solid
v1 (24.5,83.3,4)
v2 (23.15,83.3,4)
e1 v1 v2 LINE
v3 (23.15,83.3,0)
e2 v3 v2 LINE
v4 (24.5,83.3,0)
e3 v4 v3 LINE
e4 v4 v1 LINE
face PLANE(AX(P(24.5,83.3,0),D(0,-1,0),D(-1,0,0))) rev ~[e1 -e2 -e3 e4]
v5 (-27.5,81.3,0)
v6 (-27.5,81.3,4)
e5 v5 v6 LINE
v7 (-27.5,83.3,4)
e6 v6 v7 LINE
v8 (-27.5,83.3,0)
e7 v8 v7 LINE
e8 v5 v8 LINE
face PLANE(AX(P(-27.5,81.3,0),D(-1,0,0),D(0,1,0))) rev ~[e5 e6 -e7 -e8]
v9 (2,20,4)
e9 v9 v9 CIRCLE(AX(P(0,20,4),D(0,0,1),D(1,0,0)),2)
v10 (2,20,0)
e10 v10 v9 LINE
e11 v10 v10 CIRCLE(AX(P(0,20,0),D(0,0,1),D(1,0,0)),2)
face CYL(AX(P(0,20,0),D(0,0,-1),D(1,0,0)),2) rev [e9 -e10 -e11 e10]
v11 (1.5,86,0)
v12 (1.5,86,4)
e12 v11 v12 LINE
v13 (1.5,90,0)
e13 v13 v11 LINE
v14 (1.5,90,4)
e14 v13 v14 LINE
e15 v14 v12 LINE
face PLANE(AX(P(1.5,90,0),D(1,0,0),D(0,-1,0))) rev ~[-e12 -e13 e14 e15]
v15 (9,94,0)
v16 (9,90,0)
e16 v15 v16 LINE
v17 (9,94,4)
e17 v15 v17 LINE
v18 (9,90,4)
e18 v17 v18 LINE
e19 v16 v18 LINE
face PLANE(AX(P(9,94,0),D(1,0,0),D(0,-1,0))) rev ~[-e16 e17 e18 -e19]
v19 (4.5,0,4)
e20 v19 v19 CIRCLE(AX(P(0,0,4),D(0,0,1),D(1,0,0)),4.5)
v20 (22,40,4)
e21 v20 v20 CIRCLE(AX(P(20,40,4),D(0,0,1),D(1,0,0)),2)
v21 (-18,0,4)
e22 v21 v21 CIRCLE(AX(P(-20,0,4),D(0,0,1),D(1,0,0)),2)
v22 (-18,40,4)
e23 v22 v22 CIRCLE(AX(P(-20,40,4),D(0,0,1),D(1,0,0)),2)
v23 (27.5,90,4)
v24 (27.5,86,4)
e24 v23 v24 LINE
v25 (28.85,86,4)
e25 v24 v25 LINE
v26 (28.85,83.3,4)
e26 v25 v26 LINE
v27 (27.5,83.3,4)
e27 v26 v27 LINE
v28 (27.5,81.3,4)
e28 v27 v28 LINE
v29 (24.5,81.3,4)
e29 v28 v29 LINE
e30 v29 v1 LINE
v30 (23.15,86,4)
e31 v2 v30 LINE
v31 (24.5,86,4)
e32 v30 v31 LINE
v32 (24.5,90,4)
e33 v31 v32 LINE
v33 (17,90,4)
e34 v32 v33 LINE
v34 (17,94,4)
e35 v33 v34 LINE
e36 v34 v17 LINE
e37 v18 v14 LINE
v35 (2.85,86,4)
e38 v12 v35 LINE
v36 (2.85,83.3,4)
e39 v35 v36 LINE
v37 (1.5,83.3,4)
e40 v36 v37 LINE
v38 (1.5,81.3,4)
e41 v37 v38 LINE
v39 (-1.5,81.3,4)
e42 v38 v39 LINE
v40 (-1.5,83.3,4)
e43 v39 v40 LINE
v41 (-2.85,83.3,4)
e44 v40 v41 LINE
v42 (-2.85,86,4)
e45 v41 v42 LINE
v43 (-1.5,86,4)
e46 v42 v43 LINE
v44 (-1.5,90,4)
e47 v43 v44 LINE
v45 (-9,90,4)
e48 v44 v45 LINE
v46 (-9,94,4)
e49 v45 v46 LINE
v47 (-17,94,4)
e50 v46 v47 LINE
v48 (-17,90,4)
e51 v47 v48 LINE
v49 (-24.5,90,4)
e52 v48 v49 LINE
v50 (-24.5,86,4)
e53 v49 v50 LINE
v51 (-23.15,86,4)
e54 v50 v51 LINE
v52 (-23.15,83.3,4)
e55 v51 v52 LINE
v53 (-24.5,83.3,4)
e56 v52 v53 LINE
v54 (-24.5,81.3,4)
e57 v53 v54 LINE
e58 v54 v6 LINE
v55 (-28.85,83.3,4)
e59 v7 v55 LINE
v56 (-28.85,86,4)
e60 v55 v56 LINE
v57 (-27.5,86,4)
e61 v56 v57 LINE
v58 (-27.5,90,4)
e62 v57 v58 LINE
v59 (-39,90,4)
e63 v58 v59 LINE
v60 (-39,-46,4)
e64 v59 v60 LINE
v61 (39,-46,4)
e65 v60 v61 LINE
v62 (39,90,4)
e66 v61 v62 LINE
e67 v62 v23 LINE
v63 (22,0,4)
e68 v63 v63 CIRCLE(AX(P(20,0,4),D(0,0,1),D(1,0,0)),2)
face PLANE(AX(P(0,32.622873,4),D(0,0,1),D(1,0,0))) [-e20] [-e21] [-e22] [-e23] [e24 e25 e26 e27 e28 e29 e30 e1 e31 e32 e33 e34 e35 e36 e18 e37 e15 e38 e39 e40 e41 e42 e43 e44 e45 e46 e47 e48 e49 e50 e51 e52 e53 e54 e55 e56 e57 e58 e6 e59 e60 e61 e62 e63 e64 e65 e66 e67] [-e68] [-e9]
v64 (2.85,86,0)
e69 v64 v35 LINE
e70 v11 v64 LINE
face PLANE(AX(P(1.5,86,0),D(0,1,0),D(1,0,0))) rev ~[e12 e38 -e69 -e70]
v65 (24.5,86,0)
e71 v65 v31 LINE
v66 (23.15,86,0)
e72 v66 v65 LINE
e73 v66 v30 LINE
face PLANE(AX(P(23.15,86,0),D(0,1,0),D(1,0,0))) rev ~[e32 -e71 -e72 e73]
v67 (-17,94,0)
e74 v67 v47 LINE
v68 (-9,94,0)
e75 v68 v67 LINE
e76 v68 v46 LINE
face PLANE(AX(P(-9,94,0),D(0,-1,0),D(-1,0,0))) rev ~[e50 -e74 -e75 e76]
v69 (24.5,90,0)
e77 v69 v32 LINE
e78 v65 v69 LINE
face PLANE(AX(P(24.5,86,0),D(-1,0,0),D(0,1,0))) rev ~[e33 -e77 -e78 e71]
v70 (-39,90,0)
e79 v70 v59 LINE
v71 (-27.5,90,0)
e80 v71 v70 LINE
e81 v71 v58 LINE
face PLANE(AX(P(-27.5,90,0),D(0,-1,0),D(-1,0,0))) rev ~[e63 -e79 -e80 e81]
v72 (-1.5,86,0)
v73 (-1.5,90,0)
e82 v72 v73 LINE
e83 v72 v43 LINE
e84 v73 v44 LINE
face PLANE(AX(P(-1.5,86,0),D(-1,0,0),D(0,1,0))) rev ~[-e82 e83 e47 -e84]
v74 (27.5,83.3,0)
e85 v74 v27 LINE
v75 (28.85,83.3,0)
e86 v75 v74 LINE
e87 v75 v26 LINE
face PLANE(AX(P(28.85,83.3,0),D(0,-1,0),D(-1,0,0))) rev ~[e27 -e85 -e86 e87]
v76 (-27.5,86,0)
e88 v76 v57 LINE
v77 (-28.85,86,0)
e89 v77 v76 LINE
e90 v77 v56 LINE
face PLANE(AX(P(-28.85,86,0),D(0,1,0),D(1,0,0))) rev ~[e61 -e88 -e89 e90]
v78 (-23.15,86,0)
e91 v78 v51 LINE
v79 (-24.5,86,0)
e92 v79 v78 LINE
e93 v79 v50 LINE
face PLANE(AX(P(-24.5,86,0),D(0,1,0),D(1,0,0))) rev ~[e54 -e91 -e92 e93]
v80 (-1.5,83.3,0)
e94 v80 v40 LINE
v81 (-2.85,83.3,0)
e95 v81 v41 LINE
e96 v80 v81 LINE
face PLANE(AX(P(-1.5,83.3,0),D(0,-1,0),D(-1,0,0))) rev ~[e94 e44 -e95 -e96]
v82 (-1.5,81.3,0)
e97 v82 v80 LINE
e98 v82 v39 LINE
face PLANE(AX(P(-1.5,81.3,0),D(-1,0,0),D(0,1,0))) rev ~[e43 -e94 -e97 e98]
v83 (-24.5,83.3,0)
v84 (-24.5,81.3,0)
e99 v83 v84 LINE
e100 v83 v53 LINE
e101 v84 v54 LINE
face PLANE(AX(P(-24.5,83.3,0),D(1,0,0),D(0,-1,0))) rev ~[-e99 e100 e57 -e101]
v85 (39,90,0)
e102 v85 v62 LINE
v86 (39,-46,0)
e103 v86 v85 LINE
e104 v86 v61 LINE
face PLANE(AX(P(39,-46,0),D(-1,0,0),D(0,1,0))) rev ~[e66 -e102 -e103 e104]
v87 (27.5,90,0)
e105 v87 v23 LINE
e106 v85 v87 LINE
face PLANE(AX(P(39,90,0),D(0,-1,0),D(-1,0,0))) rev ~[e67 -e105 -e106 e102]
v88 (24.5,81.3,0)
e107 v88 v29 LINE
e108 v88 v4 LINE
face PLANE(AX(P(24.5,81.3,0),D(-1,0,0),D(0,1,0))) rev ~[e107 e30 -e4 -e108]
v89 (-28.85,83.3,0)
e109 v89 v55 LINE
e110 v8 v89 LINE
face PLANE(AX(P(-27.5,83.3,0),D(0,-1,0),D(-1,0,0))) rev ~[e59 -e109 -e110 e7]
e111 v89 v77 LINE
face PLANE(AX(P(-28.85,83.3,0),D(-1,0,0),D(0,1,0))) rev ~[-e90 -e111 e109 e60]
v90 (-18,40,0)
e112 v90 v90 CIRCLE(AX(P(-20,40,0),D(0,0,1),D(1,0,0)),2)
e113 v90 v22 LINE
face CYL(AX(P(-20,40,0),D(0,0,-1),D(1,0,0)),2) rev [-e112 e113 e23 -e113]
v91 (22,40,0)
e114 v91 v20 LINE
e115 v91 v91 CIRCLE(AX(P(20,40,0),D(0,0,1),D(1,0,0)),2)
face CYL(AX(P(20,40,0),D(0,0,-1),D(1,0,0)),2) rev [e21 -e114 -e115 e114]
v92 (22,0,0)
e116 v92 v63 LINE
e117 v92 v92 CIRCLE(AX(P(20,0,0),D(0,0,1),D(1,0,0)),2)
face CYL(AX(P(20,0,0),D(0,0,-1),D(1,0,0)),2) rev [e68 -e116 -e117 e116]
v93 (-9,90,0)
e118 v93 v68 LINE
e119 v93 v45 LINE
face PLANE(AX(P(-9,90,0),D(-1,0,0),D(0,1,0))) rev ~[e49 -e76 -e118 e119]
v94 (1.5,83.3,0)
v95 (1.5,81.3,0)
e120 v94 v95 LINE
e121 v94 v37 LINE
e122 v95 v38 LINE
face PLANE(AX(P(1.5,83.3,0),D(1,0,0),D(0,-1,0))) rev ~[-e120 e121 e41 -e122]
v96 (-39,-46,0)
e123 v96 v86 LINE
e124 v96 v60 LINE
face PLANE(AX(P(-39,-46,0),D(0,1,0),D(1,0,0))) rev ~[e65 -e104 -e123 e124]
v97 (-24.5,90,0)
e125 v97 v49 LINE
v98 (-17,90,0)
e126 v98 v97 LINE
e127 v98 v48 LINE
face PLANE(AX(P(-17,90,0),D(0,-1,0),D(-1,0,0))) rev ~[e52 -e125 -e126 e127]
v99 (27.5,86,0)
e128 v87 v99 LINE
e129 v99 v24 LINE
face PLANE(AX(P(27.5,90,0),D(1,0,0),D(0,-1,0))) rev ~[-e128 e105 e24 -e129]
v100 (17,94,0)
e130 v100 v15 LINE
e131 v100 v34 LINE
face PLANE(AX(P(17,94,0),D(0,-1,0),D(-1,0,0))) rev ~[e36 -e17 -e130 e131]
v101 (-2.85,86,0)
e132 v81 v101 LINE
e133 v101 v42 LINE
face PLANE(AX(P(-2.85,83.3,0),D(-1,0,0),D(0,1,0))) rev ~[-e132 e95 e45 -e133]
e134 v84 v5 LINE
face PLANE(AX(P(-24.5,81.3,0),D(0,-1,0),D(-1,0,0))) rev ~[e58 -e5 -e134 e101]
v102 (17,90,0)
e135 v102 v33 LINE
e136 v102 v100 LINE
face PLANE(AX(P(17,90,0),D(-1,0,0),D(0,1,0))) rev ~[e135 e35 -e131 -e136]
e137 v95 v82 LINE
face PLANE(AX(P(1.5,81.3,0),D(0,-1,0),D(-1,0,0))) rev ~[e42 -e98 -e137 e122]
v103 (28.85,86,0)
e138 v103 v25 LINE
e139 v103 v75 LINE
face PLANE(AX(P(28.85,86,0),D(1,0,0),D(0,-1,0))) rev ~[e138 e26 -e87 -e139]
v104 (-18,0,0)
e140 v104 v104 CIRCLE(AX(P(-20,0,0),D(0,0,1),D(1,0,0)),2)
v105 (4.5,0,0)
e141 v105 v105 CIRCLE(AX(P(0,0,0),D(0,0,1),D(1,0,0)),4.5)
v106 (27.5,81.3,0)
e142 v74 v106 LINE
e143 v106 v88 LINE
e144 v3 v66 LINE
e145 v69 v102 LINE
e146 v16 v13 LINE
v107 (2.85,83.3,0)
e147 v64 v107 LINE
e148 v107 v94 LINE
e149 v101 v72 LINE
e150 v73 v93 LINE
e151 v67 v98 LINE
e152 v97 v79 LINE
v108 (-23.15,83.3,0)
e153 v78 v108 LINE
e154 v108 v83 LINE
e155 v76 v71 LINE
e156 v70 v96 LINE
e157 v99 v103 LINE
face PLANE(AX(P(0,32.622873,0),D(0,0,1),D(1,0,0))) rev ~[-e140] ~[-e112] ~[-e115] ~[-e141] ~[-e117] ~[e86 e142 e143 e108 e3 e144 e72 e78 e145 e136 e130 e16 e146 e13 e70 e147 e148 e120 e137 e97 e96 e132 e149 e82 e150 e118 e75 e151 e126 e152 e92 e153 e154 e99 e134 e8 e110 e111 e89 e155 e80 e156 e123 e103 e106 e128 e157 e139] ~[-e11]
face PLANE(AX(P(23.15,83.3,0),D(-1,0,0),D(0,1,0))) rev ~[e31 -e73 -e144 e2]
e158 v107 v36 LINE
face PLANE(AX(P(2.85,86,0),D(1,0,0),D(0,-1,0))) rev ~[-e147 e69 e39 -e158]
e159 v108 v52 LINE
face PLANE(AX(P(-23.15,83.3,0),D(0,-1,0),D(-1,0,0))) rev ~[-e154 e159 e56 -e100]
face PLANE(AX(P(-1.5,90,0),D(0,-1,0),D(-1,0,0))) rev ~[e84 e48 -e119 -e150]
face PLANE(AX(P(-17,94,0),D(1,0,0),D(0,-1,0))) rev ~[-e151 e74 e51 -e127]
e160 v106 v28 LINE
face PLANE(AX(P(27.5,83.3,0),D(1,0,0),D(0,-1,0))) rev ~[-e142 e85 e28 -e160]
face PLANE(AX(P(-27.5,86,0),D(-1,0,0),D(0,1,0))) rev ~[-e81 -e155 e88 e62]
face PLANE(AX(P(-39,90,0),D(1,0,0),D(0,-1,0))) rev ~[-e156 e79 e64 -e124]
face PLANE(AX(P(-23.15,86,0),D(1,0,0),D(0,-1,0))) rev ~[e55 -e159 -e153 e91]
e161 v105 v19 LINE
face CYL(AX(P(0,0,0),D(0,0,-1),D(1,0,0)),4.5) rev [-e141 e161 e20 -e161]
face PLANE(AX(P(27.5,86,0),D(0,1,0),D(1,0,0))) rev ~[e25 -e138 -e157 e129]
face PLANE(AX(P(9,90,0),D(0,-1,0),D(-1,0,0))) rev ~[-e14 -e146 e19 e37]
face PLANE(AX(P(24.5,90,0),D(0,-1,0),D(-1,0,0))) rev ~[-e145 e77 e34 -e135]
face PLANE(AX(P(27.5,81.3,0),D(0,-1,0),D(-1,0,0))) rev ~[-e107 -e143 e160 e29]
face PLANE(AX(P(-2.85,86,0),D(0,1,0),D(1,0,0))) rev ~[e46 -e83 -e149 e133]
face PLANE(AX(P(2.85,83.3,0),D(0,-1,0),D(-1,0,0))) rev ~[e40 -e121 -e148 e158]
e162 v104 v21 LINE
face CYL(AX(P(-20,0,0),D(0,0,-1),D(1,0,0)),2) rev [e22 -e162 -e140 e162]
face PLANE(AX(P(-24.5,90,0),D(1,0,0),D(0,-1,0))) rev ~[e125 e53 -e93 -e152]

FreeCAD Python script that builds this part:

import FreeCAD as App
import Part
import Sketcher
from FreeCAD import Vector

doc = App.newDocument("Part")
body = doc.addObject("PartDesign::Body", "Body")

# Sketch on XY plane
sketch1 = body.newObject("Sketcher::SketchObject", "Sketch")
sketch1.AttachmentSupport = (doc.getObject("XY_Plane"), [""])
sketch1.MapMode = "FlatFace"
sketch1.addGeometry([
    Part.LineSegment(Vector(-39, 90, 0), Vector(-39, -46, 0)),  # 0
    Part.LineSegment(Vector(-39, -46, 0), Vector(39, -46, 0)),  # 1
    Part.LineSegment(Vector(39, -46, 0), Vector(39, 90, 0)),  # 2
    Part.LineSegment(Vector(39, 90, 0), Vector(27.5, 90, 0)),  # 3
    Part.LineSegment(Vector(27.5, 90, 0), Vector(27.5, 86, 0)),  # 4
    Part.LineSegment(Vector(27.5, 86, 0), Vector(28.9, 86, 0)),  # 5
    Part.LineSegment(Vector(28.9, 86, 0), Vector(28.9, 83.3, 0)),  # 6
    Part.LineSegment(Vector(28.9, 83.3, 0), Vector(27.5, 83.3, 0)),  # 7
    Part.LineSegment(Vector(27.5, 83.3, 0), Vector(27.5, 81.3, 0)),  # 8
    Part.LineSegment(Vector(27.5, 81.3, 0), Vector(24.5, 81.3, 0)),  # 9
    Part.LineSegment(Vector(24.5, 81.3, 0), Vector(24.5, 83.3, 0)),  # 10
    Part.LineSegment(Vector(24.5, 83.3, 0), Vector(23.1, 83.3, 0)),  # 11
    Part.LineSegment(Vector(23.1, 83.3, 0), Vector(23.1, 86, 0)),  # 12
    Part.LineSegment(Vector(23.1, 86, 0), Vector(24.5, 86, 0)),  # 13
    Part.LineSegment(Vector(24.5, 86, 0), Vector(24.5, 90, 0)),  # 14
    Part.LineSegment(Vector(24.5, 90, 0), Vector(17, 90, 0)),  # 15
    Part.LineSegment(Vector(17, 90, 0), Vector(17, 94, 0)),  # 16
    Part.LineSegment(Vector(17, 94, 0), Vector(9, 94, 0)),  # 17
    Part.LineSegment(Vector(9, 94, 0), Vector(9, 90, 0)),  # 18
    Part.LineSegment(Vector(9, 90, 0), Vector(1.5, 90, 0)),  # 19
    Part.LineSegment(Vector(1.5, 90, 0), Vector(1.5, 86, 0)),  # 20
    Part.LineSegment(Vector(1.5, 86, 0), Vector(2.9, 86, 0)),  # 21
    Part.LineSegment(Vector(2.9, 86, 0), Vector(2.9, 83.3, 0)),  # 22
    Part.LineSegment(Vector(2.9, 83.3, 0), Vector(1.5, 83.3, 0)),  # 23
    Part.LineSegment(Vector(1.5, 83.3, 0), Vector(1.5, 81.3, 0)),  # 24
    Part.LineSegment(Vector(1.5, 81.3, 0), Vector(-1.5, 81.3, 0)),  # 25
    Part.LineSegment(Vector(-1.5, 81.3, 0), Vector(-1.5, 83.3, 0)),  # 26
    Part.LineSegment(Vector(-1.5, 83.3, 0), Vector(-2.9, 83.3, 0)),  # 27
    Part.LineSegment(Vector(-2.9, 83.3, 0), Vector(-2.9, 86, 0)),  # 28
    Part.LineSegment(Vector(-2.9, 86, 0), Vector(-1.5, 86, 0)),  # 29
    Part.LineSegment(Vector(-1.5, 86, 0), Vector(-1.5, 90, 0)),  # 30
    Part.LineSegment(Vector(-1.5, 90, 0), Vector(-9, 90, 0)),  # 31
    Part.LineSegment(Vector(-9, 90, 0), Vector(-9, 94, 0)),  # 32
    Part.LineSegment(Vector(-9, 94, 0), Vector(-17, 94, 0)),  # 33
    Part.LineSegment(Vector(-17, 94, 0), Vector(-17, 90, 0)),  # 34
    Part.LineSegment(Vector(-17, 90, 0), Vector(-24.5, 90, 0)),  # 35
    Part.LineSegment(Vector(-24.5, 90, 0), Vector(-24.5, 86, 0)),  # 36
    Part.LineSegment(Vector(-24.5, 86, 0), Vector(-23.1, 86, 0)),  # 37
    Part.LineSegment(Vector(-23.1, 86, 0), Vector(-23.1, 83.3, 0)),  # 38
    Part.LineSegment(Vector(-23.1, 83.3, 0), Vector(-24.5, 83.3, 0)),  # 39
    Part.LineSegment(Vector(-24.5, 83.3, 0), Vector(-24.5, 81.3, 0)),  # 40
    Part.LineSegment(Vector(-24.5, 81.3, 0), Vector(-27.5, 81.3, 0)),  # 41
    Part.LineSegment(Vector(-27.5, 81.3, 0), Vector(-27.5, 83.3, 0)),  # 42
    Part.LineSegment(Vector(-27.5, 83.3, 0), Vector(-28.9, 83.3, 0)),  # 43
    Part.LineSegment(Vector(-28.9, 83.3, 0), Vector(-28.9, 86, 0)),  # 44
    Part.LineSegment(Vector(-28.9, 86, 0), Vector(-27.5, 86, 0)),  # 45
    Part.LineSegment(Vector(-27.5, 86, 0), Vector(-27.5, 90, 0)),  # 46
    Part.LineSegment(Vector(-27.5, 90, 0), Vector(-39, 90, 0)),  # 47
    Part.Circle(Vector(-20, 0, 0), Vector(0, 0, 1), 2),  # 48
    Part.Circle(Vector(0, 0, 0), Vector(0, 0, 1), 4.5),  # 49
    Part.Circle(Vector(20, 0, 0), Vector(0, 0, 1), 2),  # 50
    Part.Circle(Vector(-20, 40, 0), Vector(0, 0, 1), 2),  # 51
    Part.Circle(Vector(0, 20, 0), Vector(0, 0, 1), 2),  # 52
    Part.Circle(Vector(20, 40, 0), Vector(0, 0, 1), 2),  # 53
], False)
sketch1.addConstraint([
    Sketcher.Constraint("Coincident", 0, 2, 1, 1),
    Sketcher.Constraint("Coincident", 1, 2, 2, 1),
    Sketcher.Constraint("Coincident", 2, 2, 3, 1),
    Sketcher.Constraint("Coincident", 3, 2, 4, 1),
    Sketcher.Constraint("Coincident", 4, 2, 5, 1),
    Sketcher.Constraint("Coincident", 5, 2, 6, 1),
    Sketcher.Constraint("Coincident", 6, 2, 7, 1),
    Sketcher.Constraint("Coincident", 7, 2, 8, 1),
    Sketcher.Constraint("Coincident", 8, 2, 9, 1),
    Sketcher.Constraint("Coincident", 9, 2, 10, 1),
    Sketcher.Constraint("Coincident", 10, 2, 11, 1),
    Sketcher.Constraint("Coincident", 11, 2, 12, 1),
    Sketcher.Constraint("Coincident", 12, 2, 13, 1),
    Sketcher.Constraint("Coincident", 13, 2, 14, 1),
    Sketcher.Constraint("Coincident", 14, 2, 15, 1),
    Sketcher.Constraint("Coincident", 15, 2, 16, 1),
    Sketcher.Constraint("Coincident", 16, 2, 17, 1),
    Sketcher.Constraint("Coincident", 17, 2, 18, 1),
    Sketcher.Constraint("Coincident", 18, 2, 19, 1),
    Sketcher.Constraint("Coincident", 19, 2, 20, 1),
    Sketcher.Constraint("Coincident", 20, 2, 21, 1),
    Sketcher.Constraint("Coincident", 21, 2, 22, 1),
    Sketcher.Constraint("Coincident", 22, 2, 23, 1),
    Sketcher.Constraint("Coincident", 23, 2, 24, 1),
    Sketcher.Constraint("Coincident", 24, 2, 25, 1),
    Sketcher.Constraint("Coincident", 25, 2, 26, 1),
    Sketcher.Constraint("Coincident", 26, 2, 27, 1),
    Sketcher.Constraint("Coincident", 27, 2, 28, 1),
    Sketcher.Constraint("Coincident", 28, 2, 29, 1),
    Sketcher.Constraint("Coincident", 29, 2, 30, 1),
    Sketcher.Constraint("Coincident", 30, 2, 31, 1),
    Sketcher.Constraint("Coincident", 31, 2, 32, 1),
    Sketcher.Constraint("Coincident", 32, 2, 33, 1),
    Sketcher.Constraint("Coincident", 33, 2, 34, 1),
    Sketcher.Constraint("Coincident", 34, 2, 35, 1),
    Sketcher.Constraint("Coincident", 35, 2, 36, 1),
    Sketcher.Constraint("Coincident", 36, 2, 37, 1),
    Sketcher.Constraint("Coincident", 37, 2, 38, 1),
    Sketcher.Constraint("Coincident", 38, 2, 39, 1),
    Sketcher.Constraint("Coincident", 39, 2, 40, 1),
    Sketcher.Constraint("Coincident", 40, 2, 41, 1),
    Sketcher.Constraint("Coincident", 41, 2, 42, 1),
    Sketcher.Constraint("Coincident", 42, 2, 43, 1),
    Sketcher.Constraint("Coincident", 43, 2, 44, 1),
    Sketcher.Constraint("Coincident", 44, 2, 45, 1),
    Sketcher.Constraint("Coincident", 45, 2, 46, 1),
    Sketcher.Constraint("Coincident", 46, 2, 47, 1),
    Sketcher.Constraint("Coincident", 47, 2, 0, 1),
    Sketcher.Constraint("Vertical", 0),
    Sketcher.Constraint("Horizontal", 1),
    Sketcher.Constraint("Vertical", 2),
    Sketcher.Constraint("Horizontal", 3),
    Sketcher.Constraint("Vertical", 4),
    Sketcher.Constraint("Horizontal", 5),
    Sketcher.Constraint("Vertical", 6),
    Sketcher.Constraint("Horizontal", 7),
    Sketcher.Constraint("Vertical", 8),
    Sketcher.Constraint("Horizontal", 9),
    Sketcher.Constraint("Vertical", 10),
    Sketcher.Constraint("Horizontal", 11),
    Sketcher.Constraint("Vertical", 12),
    Sketcher.Constraint("Horizontal", 13),
    Sketcher.Constraint("Vertical", 14),
    Sketcher.Constraint("Horizontal", 15),
    Sketcher.Constraint("Vertical", 16),
    Sketcher.Constraint("Horizontal", 17),
    Sketcher.Constraint("Vertical", 18),
    Sketcher.Constraint("Horizontal", 19),
    Sketcher.Constraint("Vertical", 20),
    Sketcher.Constraint("Horizontal", 21),
    Sketcher.Constraint("Vertical", 22),
    Sketcher.Constraint("Horizontal", 23),
    Sketcher.Constraint("Vertical", 24),
    Sketcher.Constraint("Horizontal", 25),
    Sketcher.Constraint("Vertical", 26),
    Sketcher.Constraint("Horizontal", 27),
    Sketcher.Constraint("Vertical", 28),
    Sketcher.Constraint("Horizontal", 29),
    Sketcher.Constraint("Vertical", 30),
    Sketcher.Constraint("Horizontal", 31),
    Sketcher.Constraint("Vertical", 32),
    Sketcher.Constraint("Horizontal", 33),
    Sketcher.Constraint("Vertical", 34),
    Sketcher.Constraint("Horizontal", 35),
    Sketcher.Constraint("Vertical", 36),
    Sketcher.Constraint("Horizontal", 37),
    Sketcher.Constraint("Vertical", 38),
    Sketcher.Constraint("Horizontal", 39),
    Sketcher.Constraint("Vertical", 40),
    Sketcher.Constraint("Horizontal", 41),
    Sketcher.Constraint("Vertical", 42),
    Sketcher.Constraint("Horizontal", 43),
    Sketcher.Constraint("Vertical", 44),
    Sketcher.Constraint("Horizontal", 45),
    Sketcher.Constraint("Vertical", 46),
    Sketcher.Constraint("Horizontal", 47),
    Sketcher.Constraint("Coincident", 49, 3, -1, 1),
    Sketcher.Constraint("Equal", 48, 50),
    Sketcher.Constraint("Equal", 50, 51),
    Sketcher.Constraint("Equal", 51, 52),
    Sketcher.Constraint("Equal", 52, 53),
    Sketcher.Constraint("Symmetric", 48, 3, 50, 3, -1, 1),
    Sketcher.Constraint("Symmetric", 51, 3, 53, 3, -2),
    Sketcher.Constraint("Symmetric", 23, 2, 26, 2, -2),
    Sketcher.Constraint("Symmetric", 21, 2, 28, 2, -2),
    Sketcher.Constraint("Symmetric", 19, 2, 30, 2, -2),
    Sketcher.Constraint("Symmetric", 17, 2, 32, 2, -2),
    Sketcher.Constraint("Symmetric", 15, 2, 34, 2, -2),
    Sketcher.Constraint("Symmetric", 13, 2, 36, 2, -2),
    Sketcher.Constraint("Symmetric", 11, 2, 38, 2, -2),
    Sketcher.Constraint("Symmetric", 9, 2, 40, 2, -2),
    Sketcher.Constraint("Symmetric", 7, 2, 42, 2, -2),
    Sketcher.Constraint("Symmetric", 5, 2, 44, 2, -2),
    Sketcher.Constraint("Symmetric", 3, 2, 46, 2, -2),
    Sketcher.Constraint("PointOnObject", 48, 3, -1),
    Sketcher.Constraint("PointOnObject", 52, 3, -2),
    Sketcher.Constraint("Horizontal", 7, 2, 10, 2),
    Sketcher.Constraint("Horizontal", 5, 2, 12, 2),
    Sketcher.Constraint("Horizontal", 3, 2, 14, 2),
    Sketcher.Constraint("Horizontal", 15, 2, 18, 2),
    Sketcher.Constraint("Horizontal", 13, 2, 20, 2),
    Sketcher.Constraint("Horizontal", 11, 2, 22, 2),
    Sketcher.Constraint("Horizontal", 9, 2, 24, 2),
    Sketcher.Constraint("Vertical", 48, 3, 51, 3),
    Sketcher.Constraint("Vertical", 4, 2, 7, 2),
    Sketcher.Constraint("Vertical", 10, 2, 13, 2),
    Sketcher.Constraint("Vertical", 20, 2, 23, 2),
    Sketcher.Constraint("Equal", 7, 11),
    Sketcher.Constraint("Equal", 15, 19),
    Sketcher.Constraint("Equal", 13, 21),
    Sketcher.Constraint("Equal", 9, 25),
    Sketcher.Constraint("Equal", 3, 47),
    Sketcher.Constraint("Equal", 14, 16),
    Sketcher.Constraint("Diameter", 48, 4.0),
    Sketcher.Constraint("Diameter", 49, 9.0),
    Sketcher.Constraint("DistanceX", 1, 1, 1, 2, 78.0),
    Sketcher.Constraint("DistanceX", 9, 2, 9, 1, 3.0),
    Sketcher.Constraint("DistanceX", 17, 2, 17, 1, 8.0),
    Sketcher.Constraint("DistanceY", 0, 2, 0, 1, 136.0),
    Sketcher.Constraint("DistanceY", 4, 2, 4, 1, 4.0),
    Sketcher.Constraint("DistanceY", 8, 2, 8, 1, 2.0),
    Sketcher.Constraint("DistanceX", 3, 2, 3, 1, 11.5),
    Sketcher.Constraint("DistanceY", 6, 2, 6, 1, 2.7),
    Sketcher.Constraint("DistanceX", 48, 3, -1, 1, 20.0),
    Sketcher.Constraint("DistanceY", -1, 1, 51, 3, 40.0),
    Sketcher.Constraint("DistanceY", -1, 1, 52, 3, 20.0),
    Sketcher.Constraint("DistanceY", 0, 2, -1, 1, 46.0),
    Sketcher.Constraint("DistanceX", 5, 1, 5, 2, 1.35),
])
pad1 = body.newObject("PartDesign::Pad", "Pad")
pad1.Profile = sketch1
pad1.Length = 4

doc.recompute()
